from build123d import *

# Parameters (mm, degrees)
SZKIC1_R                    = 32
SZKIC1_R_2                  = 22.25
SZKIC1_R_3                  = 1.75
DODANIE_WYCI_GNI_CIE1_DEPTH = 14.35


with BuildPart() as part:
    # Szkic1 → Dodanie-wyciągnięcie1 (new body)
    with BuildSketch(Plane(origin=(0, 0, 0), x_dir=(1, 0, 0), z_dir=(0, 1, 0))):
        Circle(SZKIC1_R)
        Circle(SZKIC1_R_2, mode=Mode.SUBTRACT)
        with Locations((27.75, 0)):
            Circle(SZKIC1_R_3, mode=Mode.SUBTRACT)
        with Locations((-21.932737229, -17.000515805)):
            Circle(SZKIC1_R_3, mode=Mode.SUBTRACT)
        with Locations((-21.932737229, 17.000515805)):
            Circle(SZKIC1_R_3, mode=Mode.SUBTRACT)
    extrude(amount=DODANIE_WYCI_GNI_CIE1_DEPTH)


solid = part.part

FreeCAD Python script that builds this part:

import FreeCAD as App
import Part
import Sketcher

V = App.Vector
Q = App.Units.Quantity

doc = App.newDocument("Part")
body = doc.addObject("PartDesign::Body", "Body")

# Sketch on XZ plane
sketch1 = body.newObject("Sketcher::SketchObject", "Sketch")
sketch1.AttachmentSupport = (doc.getObject("XZ_Plane"), [""])
sketch1.MapMode = "FlatFace"
sketch1.addGeometry(Part.Circle(V(0, 0, 0), V(0, 0, 1), 32), False)
sketch1.addGeometry(Part.Circle(V(-21.9, 17, 0), V(0, 0, 1), 1.8), False)
sketch1.addGeometry(Part.Circle(V(0, 0, 0), V(0, 0, 1), 22.2), False)
sketch1.addGeometry(Part.Circle(V(-21.9, -17, 0), V(0, 0, 1), 1.8), False)
sketch1.addGeometry(Part.Circle(V(27.8, 0, 0), V(0, 0, 1), 1.8), False)
sketch1.addConstraint(Sketcher.Constraint("Coincident", 0, 3, -1, 1))
sketch1.addConstraint(Sketcher.Constraint("Coincident", 2, 3, -1, 1))
sketch1.addConstraint(Sketcher.Constraint("Equal", 1, 3))
sketch1.addConstraint(Sketcher.Constraint("Equal", 3, 4))
sketch1.addConstraint(Sketcher.Constraint("Symmetric", 1, 3, 3, 3, -1))
sketch1.addConstraint(Sketcher.Constraint("PointOnObject", 4, 3, -1))
sketch1.addConstraint(Sketcher.Constraint("Diameter", 0, Q("64 mm")))
sketch1.addConstraint(Sketcher.Constraint("Diameter", 1, Q("3.5 mm")))
sketch1.addConstraint(Sketcher.Constraint("Diameter", 2, Q("44.5 mm")))
sketch1.addConstraint(Sketcher.Constraint("DistanceX", -1, 1, 4, 3, Q("27.75 mm")))
sketch1.addConstraint(Sketcher.Constraint("DistanceY", 3, 3, 1, 3, Q("34.001032 mm")))
sketch1.addConstraint(Sketcher.Constraint("DistanceX", 1, 3, -1, 1, Q("21.932737 mm")))
pad1 = body.newObject("PartDesign::Pad", "Pad")
pad1.Profile = sketch1
pad1.Length = 14.35
pad1.Reversed = True

doc.recompute()
